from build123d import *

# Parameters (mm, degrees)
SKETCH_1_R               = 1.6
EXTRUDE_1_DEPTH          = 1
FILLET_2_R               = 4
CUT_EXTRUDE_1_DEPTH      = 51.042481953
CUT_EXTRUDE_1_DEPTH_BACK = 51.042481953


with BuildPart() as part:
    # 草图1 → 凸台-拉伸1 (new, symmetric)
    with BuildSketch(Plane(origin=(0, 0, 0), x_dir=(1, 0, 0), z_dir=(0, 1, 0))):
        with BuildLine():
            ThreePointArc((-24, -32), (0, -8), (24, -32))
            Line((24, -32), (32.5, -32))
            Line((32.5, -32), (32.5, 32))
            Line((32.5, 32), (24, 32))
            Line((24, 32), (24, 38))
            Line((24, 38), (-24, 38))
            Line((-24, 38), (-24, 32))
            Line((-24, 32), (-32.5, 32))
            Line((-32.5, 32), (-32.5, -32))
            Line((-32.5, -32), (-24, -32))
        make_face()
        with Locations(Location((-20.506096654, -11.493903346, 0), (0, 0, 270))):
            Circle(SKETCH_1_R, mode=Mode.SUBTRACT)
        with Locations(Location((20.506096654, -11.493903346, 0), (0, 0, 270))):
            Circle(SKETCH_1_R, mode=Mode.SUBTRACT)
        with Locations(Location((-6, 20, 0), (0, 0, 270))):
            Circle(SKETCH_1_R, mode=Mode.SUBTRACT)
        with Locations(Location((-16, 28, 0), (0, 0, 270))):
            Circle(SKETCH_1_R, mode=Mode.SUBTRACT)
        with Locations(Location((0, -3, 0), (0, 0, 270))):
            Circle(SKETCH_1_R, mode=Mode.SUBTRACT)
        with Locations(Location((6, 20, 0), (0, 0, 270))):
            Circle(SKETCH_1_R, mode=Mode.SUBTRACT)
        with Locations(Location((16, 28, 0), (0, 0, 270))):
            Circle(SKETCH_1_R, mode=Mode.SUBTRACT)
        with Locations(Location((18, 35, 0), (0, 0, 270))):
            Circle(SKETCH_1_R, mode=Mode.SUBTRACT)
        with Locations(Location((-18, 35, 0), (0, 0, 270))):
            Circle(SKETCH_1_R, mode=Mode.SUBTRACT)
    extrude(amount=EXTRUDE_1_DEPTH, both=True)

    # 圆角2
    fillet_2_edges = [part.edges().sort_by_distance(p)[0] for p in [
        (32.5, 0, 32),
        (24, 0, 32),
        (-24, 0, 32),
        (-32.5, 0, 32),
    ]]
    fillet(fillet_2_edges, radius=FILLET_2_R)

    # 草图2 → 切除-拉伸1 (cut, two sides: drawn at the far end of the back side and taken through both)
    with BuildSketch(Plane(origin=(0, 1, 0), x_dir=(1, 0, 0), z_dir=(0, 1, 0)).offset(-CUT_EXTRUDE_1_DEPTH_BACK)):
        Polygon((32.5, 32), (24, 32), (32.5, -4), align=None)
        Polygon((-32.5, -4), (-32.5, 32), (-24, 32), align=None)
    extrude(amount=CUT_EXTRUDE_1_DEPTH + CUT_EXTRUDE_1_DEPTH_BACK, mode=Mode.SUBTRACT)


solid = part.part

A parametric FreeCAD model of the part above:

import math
import FreeCAD as App
import Part
import Sketcher
from FreeCAD import Vector


def edges_at(feature, points):
    """Names of the edges that pass closest to the given points."""
    edges = feature.Shape.Edges
    near = lambda p: min(range(len(edges)), key=lambda i: edges[i].distToShape(Part.Vertex(*p))[0])
    return sorted({f"Edge{near(p) + 1}" for p in points})

doc = App.newDocument("Part")
body = doc.addObject("PartDesign::Body", "Body")

# Sketch on XZ plane
sketch1 = doc.addObject("Sketcher::SketchObject", "Sketch")
body.addObject(sketch1)
sketch1.AttachmentSupport = (doc.XZ_Plane, [""])
sketch1.MapMode = "FlatFace"
sketch1.addGeometry(Part.ArcOfCircle(Part.Circle(Vector(0, 32, 0), Vector(0, 0, 1), 24), math.radians(180), math.radians(360)), False)
sketch1.addGeometry(Part.LineSegment(Vector(24, 32, 0), Vector(32.5, 32, 0)), False)
sketch1.addGeometry(Part.LineSegment(Vector(32.5, 32, 0), Vector(32.5, -32, 0)), False)
sketch1.addGeometry(Part.LineSegment(Vector(32.5, -32, 0), Vector(24, -32, 0)), False)
sketch1.addGeometry(Part.LineSegment(Vector(24, -32, 0), Vector(24, -38, 0)), False)
sketch1.addGeometry(Part.LineSegment(Vector(24, -38, 0), Vector(-24, -38, 0)), False)
sketch1.addGeometry(Part.LineSegment(Vector(-24, -38, 0), Vector(-24, -32, 0)), False)
sketch1.addGeometry(Part.LineSegment(Vector(-24, -32, 0), Vector(-32.5, -32, 0)), False)
sketch1.addGeometry(Part.LineSegment(Vector(-32.5, -32, 0), Vector(-32.5, 32, 0)), False)
sketch1.addGeometry(Part.LineSegment(Vector(-32.5, 32, 0), Vector(-24, 32, 0)), False)
sketch1.addGeometry(Part.Circle(Vector(-20.506097, 11.493903, 0), Vector(0, 0, 1), 1.6), False)
sketch1.addGeometry(Part.Circle(Vector(0, 3, 0), Vector(0, 0, 1), 1.6), False)
sketch1.addGeometry(Part.Circle(Vector(20.506097, 11.493903, 0), Vector(0, 0, 1), 1.6), False)
sketch1.addGeometry(Part.Circle(Vector(-6, -20, 0), Vector(0, 0, 1), 1.6), False)
sketch1.addGeometry(Part.Circle(Vector(-16, -28, 0), Vector(0, 0, 1), 1.6), False)
sketch1.addGeometry(Part.Circle(Vector(-18, -35, 0), Vector(0, 0, 1), 1.6), False)
sketch1.addGeometry(Part.Circle(Vector(6, -20, 0), Vector(0, 0, 1), 1.6), False)
sketch1.addGeometry(Part.Circle(Vector(16, -28, 0), Vector(0, 0, 1), 1.6), False)
sketch1.addGeometry(Part.Circle(Vector(18, -35, 0), Vector(0, 0, 1), 1.6), False)
sketch1.addConstraint(Sketcher.Constraint("Coincident", 0, 2, 1, 1))
sketch1.addConstraint(Sketcher.Constraint("Coincident", 1, 2, 2, 1))
sketch1.addConstraint(Sketcher.Constraint("Coincident", 2, 2, 3, 1))
sketch1.addConstraint(Sketcher.Constraint("Coincident", 3, 2, 4, 1))
sketch1.addConstraint(Sketcher.Constraint("Coincident", 4, 2, 5, 1))
sketch1.addConstraint(Sketcher.Constraint("Coincident", 5, 2, 6, 1))
sketch1.addConstraint(Sketcher.Constraint("Coincident", 6, 2, 7, 1))
sketch1.addConstraint(Sketcher.Constraint("Coincident", 7, 2, 8, 1))
sketch1.addConstraint(Sketcher.Constraint("Coincident", 8, 2, 9, 1))
sketch1.addConstraint(Sketcher.Constraint("Coincident", 9, 2, 0, 1))
sketch1.addConstraint(Sketcher.Constraint("Horizontal", 1))
sketch1.addConstraint(Sketcher.Constraint("Vertical", 2))
sketch1.addConstraint(Sketcher.Constraint("Horizontal", 3))
sketch1.addConstraint(Sketcher.Constraint("Vertical", 4))
sketch1.addConstraint(Sketcher.Constraint("Horizontal", 5))
sketch1.addConstraint(Sketcher.Constraint("Vertical", 6))
sketch1.addConstraint(Sketcher.Constraint("Horizontal", 7))
sketch1.addConstraint(Sketcher.Constraint("Vertical", 8))
sketch1.addConstraint(Sketcher.Constraint("Horizontal", 9))
sketch1.addConstraint(Sketcher.Constraint("Equal", 10, 11))
sketch1.addConstraint(Sketcher.Constraint("Equal", 11, 12))
sketch1.addConstraint(Sketcher.Constraint("Equal", 12, 13))
sketch1.addConstraint(Sketcher.Constraint("Equal", 13, 14))
sketch1.addConstraint(Sketcher.Constraint("Equal", 14, 15))
sketch1.addConstraint(Sketcher.Constraint("Equal", 15, 16))
sketch1.addConstraint(Sketcher.Constraint("Equal", 16, 17))
sketch1.addConstraint(Sketcher.Constraint("Equal", 17, 18))
sketch1.addConstraint(Sketcher.Constraint("Symmetric", 0, 2, 6, 2, -1, 1))
sketch1.addConstraint(Sketcher.Constraint("Symmetric", 2, 2, 8, 2, -1, 1))
sketch1.addConstraint(Sketcher.Constraint("Symmetric", 10, 3, 12, 3, -2))
sketch1.addConstraint(Sketcher.Constraint("Symmetric", 13, 3, 16, 3, -2))
sketch1.addConstraint(Sketcher.Constraint("Symmetric", 14, 3, 17, 3, -2))
sketch1.addConstraint(Sketcher.Constraint("Symmetric", 15, 3, 18, 3, -2))
sketch1.addConstraint(Sketcher.Constraint("Symmetric", 3, 2, 6, 2, -2))
sketch1.addConstraint(Sketcher.Constraint("PointOnObject", 0, 3, -2))
sketch1.addConstraint(Sketcher.Constraint("PointOnObject", 11, 3, -2))
sketch1.addConstraint(Sketcher.Constraint("Radius", 0, 24.0))
sketch1.addConstraint(Sketcher.Constraint("Diameter", 10, 3.2))
sketch1.addConstraint(Sketcher.Constraint("DistanceY", 2, 2, 2, 1, 64.0))
sketch1.addConstraint(Sketcher.Constraint("DistanceY", 4, 2, 4, 1, 6.0))
sketch1.addConstraint(Sketcher.Constraint("DistanceX", 1, 1, 1, 2, 8.5))
sketch1.addConstraint(Sketcher.Constraint("DistanceY", -1, 1, 0, 3, 32.0))
sketch1.addConstraint(Sketcher.Constraint("DistanceY", -1, 1, 11, 3, 3.0))
sketch1.addConstraint(Sketcher.Constraint("DistanceX", 13, 3, -1, 1, 6.0))
sketch1.addConstraint(Sketcher.Constraint("DistanceY", 13, 3, -1, 1, 20.0))
sketch1.addConstraint(Sketcher.Constraint("DistanceX", 14, 3, -1, 1, 16.0))
sketch1.addConstraint(Sketcher.Constraint("DistanceY", 14, 3, -1, 1, 28.0))
sketch1.addConstraint(Sketcher.Constraint("DistanceX", 15, 3, -1, 1, 18.0))
sketch1.addConstraint(Sketcher.Constraint("DistanceY", 15, 3, -1, 1, 35.0))
sketch1.addConstraint(Sketcher.Constraint("DistanceX", 10, 3, -1, 1, 20.506097))
sketch1.addConstraint(Sketcher.Constraint("DistanceY", -1, 1, 10, 3, 11.493903))
pad1 = doc.addObject("PartDesign::Pad", "Pad")
body.addObject(pad1)
pad1.Profile = sketch1
pad1.Length = 2
pad1.Midplane = True
doc.recompute()

fillet = doc.addObject("PartDesign::Fillet", "Fillet")
body.addObject(fillet)
fillet.Base = (pad1, edges_at(pad1, [
    (32.5, 0, 32),
    (24, 0, 32),
    (-24, 0, 32),
    (-32.5, 0, 32),
]))
fillet.Radius = 4

# Sketch on XZ plane
sketch2 = doc.addObject("Sketcher::SketchObject", "Sketch001")
body.addObject(sketch2)
sketch2.AttachmentSupport = (doc.XZ_Plane, [""])
sketch2.MapMode = "FlatFace"
sketch2.AttachmentOffset = App.Placement(Vector(0, 0, -1), App.Rotation())
sketch2.addGeometry(Part.LineSegment(Vector(32.5, -32, 0), Vector(24, -32, 0)), False)
sketch2.addGeometry(Part.LineSegment(Vector(24, -32, 0), Vector(32.5, 4, 0)), False)
sketch2.addGeometry(Part.LineSegment(Vector(32.5, 4, 0), Vector(32.5, -32, 0)), False)
sketch2.addGeometry(Part.LineSegment(Vector(-32.5, -32, 0), Vector(-32.5, 4, 0)), False)
sketch2.addGeometry(Part.LineSegment(Vector(-32.5, 4, 0), Vector(-24, -32, 0)), False)
sketch2.addGeometry(Part.LineSegment(Vector(-24, -32, 0), Vector(-32.5, -32, 0)), False)
sketch2.addConstraint(Sketcher.Constraint("Coincident", 0, 2, 1, 1))
sketch2.addConstraint(Sketcher.Constraint("Coincident", 1, 2, 2, 1))
sketch2.addConstraint(Sketcher.Constraint("Coincident", 2, 2, 0, 1))
sketch2.addConstraint(Sketcher.Constraint("Coincident", 3, 2, 4, 1))
sketch2.addConstraint(Sketcher.Constraint("Coincident", 4, 2, 5, 1))
sketch2.addConstraint(Sketcher.Constraint("Coincident", 5, 2, 3, 1))
sketch2.addConstraint(Sketcher.Constraint("Horizontal", 0))
sketch2.addConstraint(Sketcher.Constraint("Vertical", 2))
sketch2.addConstraint(Sketcher.Constraint("Vertical", 3))
sketch2.addConstraint(Sketcher.Constraint("Horizontal", 5))
sketch2.addConstraint(Sketcher.Constraint("Symmetric", 1, 2, 3, 2, -2))
sketch2.addConstraint(Sketcher.Constraint("Symmetric", 0, 2, 4, 2, -2))
sketch2.addConstraint(Sketcher.Constraint("DistanceY", 2, 2, 2, 1, 36.0))
sketch2.addConstraint(Sketcher.Constraint("DistanceX", 0, 2, 0, 1, 8.5))
sketch2.addConstraint(Sketcher.Constraint("DistanceX", -1, 1, 0, 2, 24.0))
sketch2.addConstraint(Sketcher.Constraint("DistanceY", 0, 2, -1, 1, 32.0))
pocket1 = doc.addObject("PartDesign::Pocket", "Pocket")
body.addObject(pocket1)
pocket1.Profile = sketch2
pocket1.Type = "ThroughAll"
pocket1.Midplane = True

doc.recompute()
